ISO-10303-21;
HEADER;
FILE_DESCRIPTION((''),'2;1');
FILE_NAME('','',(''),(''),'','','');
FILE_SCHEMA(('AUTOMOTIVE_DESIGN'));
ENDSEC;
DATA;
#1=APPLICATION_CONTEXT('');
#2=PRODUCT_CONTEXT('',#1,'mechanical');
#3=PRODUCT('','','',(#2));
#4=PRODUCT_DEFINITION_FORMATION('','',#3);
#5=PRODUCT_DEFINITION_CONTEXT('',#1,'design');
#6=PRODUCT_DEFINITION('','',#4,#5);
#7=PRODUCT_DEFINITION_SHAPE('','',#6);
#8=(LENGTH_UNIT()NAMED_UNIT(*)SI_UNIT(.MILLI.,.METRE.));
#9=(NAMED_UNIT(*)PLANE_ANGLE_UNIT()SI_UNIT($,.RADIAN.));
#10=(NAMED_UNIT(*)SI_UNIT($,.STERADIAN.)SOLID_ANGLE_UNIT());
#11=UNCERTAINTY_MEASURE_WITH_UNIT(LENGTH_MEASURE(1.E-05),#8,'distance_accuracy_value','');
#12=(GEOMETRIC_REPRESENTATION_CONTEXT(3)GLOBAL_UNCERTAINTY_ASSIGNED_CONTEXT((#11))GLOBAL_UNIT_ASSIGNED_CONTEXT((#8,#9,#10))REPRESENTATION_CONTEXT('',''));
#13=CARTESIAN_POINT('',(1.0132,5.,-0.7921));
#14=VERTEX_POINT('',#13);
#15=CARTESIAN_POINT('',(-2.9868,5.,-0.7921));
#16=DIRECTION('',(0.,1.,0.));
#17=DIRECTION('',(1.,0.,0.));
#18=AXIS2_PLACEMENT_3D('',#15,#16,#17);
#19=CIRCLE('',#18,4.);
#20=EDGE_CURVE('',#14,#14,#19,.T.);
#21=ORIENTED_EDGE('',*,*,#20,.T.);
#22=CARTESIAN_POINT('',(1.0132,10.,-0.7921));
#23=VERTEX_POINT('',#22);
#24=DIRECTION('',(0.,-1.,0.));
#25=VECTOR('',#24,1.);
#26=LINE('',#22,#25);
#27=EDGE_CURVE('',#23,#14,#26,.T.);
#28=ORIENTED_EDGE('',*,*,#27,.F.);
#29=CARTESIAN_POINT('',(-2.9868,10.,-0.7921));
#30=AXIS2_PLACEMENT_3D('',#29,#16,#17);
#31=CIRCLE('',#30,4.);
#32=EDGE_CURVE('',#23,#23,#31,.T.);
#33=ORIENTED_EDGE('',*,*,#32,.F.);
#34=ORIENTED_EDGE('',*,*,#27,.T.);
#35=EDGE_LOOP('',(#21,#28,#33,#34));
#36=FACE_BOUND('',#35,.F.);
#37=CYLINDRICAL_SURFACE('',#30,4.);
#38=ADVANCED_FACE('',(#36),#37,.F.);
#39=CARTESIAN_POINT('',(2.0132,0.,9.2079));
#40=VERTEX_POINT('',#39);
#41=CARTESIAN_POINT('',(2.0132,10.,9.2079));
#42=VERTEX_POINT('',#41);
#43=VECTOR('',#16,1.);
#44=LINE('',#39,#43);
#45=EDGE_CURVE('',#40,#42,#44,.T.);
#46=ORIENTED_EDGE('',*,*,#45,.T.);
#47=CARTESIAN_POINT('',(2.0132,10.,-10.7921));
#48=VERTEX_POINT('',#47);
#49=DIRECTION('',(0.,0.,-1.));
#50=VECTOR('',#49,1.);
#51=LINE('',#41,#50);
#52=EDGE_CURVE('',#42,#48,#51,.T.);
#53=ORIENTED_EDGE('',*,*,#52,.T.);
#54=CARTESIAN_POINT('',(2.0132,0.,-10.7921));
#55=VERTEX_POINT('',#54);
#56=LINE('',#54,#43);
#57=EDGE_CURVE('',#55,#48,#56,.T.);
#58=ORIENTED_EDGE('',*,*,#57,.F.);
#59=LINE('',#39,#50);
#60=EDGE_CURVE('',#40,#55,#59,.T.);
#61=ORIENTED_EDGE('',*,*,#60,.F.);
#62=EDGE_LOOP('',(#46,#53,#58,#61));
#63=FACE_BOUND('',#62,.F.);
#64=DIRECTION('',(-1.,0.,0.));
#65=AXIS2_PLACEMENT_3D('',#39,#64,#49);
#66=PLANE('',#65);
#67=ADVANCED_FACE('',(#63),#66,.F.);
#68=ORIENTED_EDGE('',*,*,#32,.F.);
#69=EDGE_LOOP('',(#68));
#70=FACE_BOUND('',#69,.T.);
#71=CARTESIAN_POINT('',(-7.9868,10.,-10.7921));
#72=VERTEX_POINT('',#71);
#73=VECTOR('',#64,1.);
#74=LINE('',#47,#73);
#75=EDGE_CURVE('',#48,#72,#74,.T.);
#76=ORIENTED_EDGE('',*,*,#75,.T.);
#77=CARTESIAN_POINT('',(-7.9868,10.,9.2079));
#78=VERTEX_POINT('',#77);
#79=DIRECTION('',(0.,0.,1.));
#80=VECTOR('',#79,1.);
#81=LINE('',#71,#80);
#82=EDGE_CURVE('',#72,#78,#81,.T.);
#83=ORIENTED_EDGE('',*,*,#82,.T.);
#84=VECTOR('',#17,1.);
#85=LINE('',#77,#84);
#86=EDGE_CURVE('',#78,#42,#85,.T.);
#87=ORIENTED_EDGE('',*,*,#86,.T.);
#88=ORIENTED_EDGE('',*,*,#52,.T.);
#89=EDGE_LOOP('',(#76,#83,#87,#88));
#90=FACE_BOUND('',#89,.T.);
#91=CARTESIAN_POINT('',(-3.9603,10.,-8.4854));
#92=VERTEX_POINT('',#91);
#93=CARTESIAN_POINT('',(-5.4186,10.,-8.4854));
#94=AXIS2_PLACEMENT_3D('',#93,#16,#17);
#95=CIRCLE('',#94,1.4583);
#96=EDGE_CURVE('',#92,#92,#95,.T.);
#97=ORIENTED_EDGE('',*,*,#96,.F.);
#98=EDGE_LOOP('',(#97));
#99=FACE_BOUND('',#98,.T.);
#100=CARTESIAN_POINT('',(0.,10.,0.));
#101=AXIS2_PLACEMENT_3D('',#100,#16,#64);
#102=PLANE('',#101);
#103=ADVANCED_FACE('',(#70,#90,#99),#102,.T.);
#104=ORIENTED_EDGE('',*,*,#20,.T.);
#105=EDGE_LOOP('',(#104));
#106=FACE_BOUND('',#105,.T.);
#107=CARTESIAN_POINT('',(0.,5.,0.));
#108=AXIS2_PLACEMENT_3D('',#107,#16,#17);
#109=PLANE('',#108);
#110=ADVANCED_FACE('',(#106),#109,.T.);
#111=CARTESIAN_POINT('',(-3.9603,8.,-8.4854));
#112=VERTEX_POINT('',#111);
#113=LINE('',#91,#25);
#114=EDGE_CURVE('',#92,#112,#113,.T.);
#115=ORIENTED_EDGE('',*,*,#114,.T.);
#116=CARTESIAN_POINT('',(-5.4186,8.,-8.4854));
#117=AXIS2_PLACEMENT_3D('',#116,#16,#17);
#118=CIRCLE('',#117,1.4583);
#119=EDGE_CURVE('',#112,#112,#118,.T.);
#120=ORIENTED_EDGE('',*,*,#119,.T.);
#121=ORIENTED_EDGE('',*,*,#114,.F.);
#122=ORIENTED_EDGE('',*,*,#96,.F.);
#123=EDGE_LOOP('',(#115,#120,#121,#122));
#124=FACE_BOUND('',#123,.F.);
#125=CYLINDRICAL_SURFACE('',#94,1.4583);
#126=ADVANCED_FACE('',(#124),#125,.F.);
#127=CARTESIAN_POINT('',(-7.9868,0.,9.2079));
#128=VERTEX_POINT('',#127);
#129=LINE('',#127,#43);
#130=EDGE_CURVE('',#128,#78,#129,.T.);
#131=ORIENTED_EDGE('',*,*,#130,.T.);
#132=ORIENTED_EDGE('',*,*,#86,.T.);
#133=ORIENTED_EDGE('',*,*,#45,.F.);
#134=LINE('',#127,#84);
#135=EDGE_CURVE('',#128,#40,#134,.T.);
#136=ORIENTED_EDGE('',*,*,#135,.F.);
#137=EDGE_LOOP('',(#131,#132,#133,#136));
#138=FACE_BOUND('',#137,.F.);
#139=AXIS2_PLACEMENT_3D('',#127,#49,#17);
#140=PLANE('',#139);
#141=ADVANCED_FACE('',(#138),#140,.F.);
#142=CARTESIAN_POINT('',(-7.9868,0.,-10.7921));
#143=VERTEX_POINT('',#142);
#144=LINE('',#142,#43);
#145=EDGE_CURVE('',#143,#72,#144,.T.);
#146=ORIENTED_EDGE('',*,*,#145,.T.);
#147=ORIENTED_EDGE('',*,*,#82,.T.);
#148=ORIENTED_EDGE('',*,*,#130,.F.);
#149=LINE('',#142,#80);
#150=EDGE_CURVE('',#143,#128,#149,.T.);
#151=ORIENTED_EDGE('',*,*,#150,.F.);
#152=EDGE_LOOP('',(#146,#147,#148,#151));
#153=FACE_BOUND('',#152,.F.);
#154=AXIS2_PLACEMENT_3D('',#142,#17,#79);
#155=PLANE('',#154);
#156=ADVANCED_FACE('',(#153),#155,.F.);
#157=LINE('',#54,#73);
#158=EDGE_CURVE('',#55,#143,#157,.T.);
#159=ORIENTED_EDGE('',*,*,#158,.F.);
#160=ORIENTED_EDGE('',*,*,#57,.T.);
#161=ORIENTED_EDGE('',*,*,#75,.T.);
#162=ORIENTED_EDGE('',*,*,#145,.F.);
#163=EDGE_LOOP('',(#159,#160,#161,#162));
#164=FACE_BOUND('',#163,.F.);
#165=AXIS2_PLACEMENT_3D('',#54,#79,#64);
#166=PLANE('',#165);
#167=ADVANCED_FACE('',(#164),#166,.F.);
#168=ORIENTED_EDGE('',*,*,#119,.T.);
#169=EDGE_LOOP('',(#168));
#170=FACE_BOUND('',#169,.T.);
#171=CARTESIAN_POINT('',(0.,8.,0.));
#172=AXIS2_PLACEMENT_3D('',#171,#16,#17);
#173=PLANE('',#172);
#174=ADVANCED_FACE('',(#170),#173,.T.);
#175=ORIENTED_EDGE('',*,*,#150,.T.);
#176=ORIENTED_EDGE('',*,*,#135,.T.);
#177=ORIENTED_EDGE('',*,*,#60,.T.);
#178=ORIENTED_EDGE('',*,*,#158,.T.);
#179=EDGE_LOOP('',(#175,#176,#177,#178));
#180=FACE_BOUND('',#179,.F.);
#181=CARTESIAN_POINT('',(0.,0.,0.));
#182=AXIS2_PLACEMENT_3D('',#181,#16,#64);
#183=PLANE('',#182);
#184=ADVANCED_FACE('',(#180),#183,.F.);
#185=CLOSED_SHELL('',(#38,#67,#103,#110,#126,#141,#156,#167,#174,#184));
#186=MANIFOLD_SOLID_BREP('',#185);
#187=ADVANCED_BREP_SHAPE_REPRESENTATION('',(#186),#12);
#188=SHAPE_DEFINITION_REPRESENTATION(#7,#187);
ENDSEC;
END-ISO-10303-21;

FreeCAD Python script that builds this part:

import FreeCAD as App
import Part
import Sketcher
Q = App.Units.Quantity


def add_polygon(sketch, points):
    """Adds a closed chain of lines whose ends are joined by coincident constraints."""
    first, n = sketch.GeometryCount, len(points)
    for a, b in zip(points, points[1:] + points[:1]):
        sketch.addGeometry(Part.LineSegment(App.Vector(*a, 0), App.Vector(*b, 0)), False)
    for i in range(n):
        sketch.addConstraint(Sketcher.Constraint("Coincident", first + i, 2, first + (i + 1) % n, 1))

doc = App.newDocument("Part")
body = doc.addObject("PartDesign::Body", "Body")

# Sketch on XZ plane
sketch1 = body.newObject("Sketcher::SketchObject", "Sketch")
sketch1.AttachmentSupport = (doc.getObject("XZ_Plane"), [""])
sketch1.MapMode = "FlatFace"
add_polygon(sketch1, [(-8, -11), (-8, 9), (2, 9), (2, -11)])  # lines 0-3
sketch1.addConstraint(Sketcher.Constraint("Vertical", 0))
sketch1.addConstraint(Sketcher.Constraint("Horizontal", 1))
sketch1.addConstraint(Sketcher.Constraint("Vertical", 2))
sketch1.addConstraint(Sketcher.Constraint("Horizontal", 3))
sketch1.addConstraint(Sketcher.Constraint("DistanceX", 1, 1, 1, 2, Q("10 mm")))
sketch1.addConstraint(Sketcher.Constraint("DistanceY", 0, 1, 0, 2, Q("20 mm")))
sketch1.addConstraint(Sketcher.Constraint("DistanceY", -1, 1, 0, 2, Q("9.208 mm")))
sketch1.addConstraint(Sketcher.Constraint("DistanceX", 0, 2, -1, 1, Q("7.9868 mm")))
pad1 = body.newObject("PartDesign::Pad", "Pad")
pad1.Profile = sketch1
pad1.Length = 10
pad1.Reversed = True

# Sketch on XZ plane
sketch2 = body.newObject("Sketcher::SketchObject", "Sketch001")
sketch2.AttachmentSupport = (doc.getObject("XZ_Plane"), [""])
sketch2.MapMode = "FlatFace"
sketch2.AttachmentOffset = App.Placement(App.Vector(0, 0, -10), App.Rotation())
sketch2.addGeometry(Part.Circle(App.Vector(-3, -0.8, 0), App.Vector(0, 0, 1), 4), False)
sketch2.addConstraint(Sketcher.Constraint("Diameter", 0, Q("8 mm")))
sketch2.addConstraint(Sketcher.Constraint("DistanceY", 0, 3, -1, 1, Q("0.792 mm")))
sketch2.addConstraint(Sketcher.Constraint("DistanceX", 0, 3, -1, 1, Q("2.9868 mm")))
pocket1 = body.newObject("PartDesign::Pocket", "Pocket")
pocket1.Profile = sketch2
pocket1.Length = 5
pocket1.Reversed = True

# Sketch on XZ plane
sketch3 = body.newObject("Sketcher::SketchObject", "Sketch002")
sketch3.AttachmentSupport = (doc.getObject("XZ_Plane"), [""])
sketch3.MapMode = "FlatFace"
sketch3.AttachmentOffset = App.Placement(App.Vector(0, 0, -10), App.Rotation())
sketch3.addGeometry(Part.Circle(App.Vector(-5.4, -8.5, 0), App.Vector(0, 0, 1), 1.5), False)
sketch3.addConstraint(Sketcher.Constraint("Diameter", 0, Q("2.9166 mm")))
sketch3.addConstraint(Sketcher.Constraint("DistanceX", 0, 3, -1, 1, Q("5.4186 mm")))
sketch3.addConstraint(Sketcher.Constraint("DistanceY", 0, 3, -1, 1, Q("8.4854 mm")))
pocket2 = body.newObject("PartDesign::Pocket", "Pocket001")
pocket2.Profile = sketch3
pocket2.Length = 2
pocket2.Reversed = True

doc.recompute()
